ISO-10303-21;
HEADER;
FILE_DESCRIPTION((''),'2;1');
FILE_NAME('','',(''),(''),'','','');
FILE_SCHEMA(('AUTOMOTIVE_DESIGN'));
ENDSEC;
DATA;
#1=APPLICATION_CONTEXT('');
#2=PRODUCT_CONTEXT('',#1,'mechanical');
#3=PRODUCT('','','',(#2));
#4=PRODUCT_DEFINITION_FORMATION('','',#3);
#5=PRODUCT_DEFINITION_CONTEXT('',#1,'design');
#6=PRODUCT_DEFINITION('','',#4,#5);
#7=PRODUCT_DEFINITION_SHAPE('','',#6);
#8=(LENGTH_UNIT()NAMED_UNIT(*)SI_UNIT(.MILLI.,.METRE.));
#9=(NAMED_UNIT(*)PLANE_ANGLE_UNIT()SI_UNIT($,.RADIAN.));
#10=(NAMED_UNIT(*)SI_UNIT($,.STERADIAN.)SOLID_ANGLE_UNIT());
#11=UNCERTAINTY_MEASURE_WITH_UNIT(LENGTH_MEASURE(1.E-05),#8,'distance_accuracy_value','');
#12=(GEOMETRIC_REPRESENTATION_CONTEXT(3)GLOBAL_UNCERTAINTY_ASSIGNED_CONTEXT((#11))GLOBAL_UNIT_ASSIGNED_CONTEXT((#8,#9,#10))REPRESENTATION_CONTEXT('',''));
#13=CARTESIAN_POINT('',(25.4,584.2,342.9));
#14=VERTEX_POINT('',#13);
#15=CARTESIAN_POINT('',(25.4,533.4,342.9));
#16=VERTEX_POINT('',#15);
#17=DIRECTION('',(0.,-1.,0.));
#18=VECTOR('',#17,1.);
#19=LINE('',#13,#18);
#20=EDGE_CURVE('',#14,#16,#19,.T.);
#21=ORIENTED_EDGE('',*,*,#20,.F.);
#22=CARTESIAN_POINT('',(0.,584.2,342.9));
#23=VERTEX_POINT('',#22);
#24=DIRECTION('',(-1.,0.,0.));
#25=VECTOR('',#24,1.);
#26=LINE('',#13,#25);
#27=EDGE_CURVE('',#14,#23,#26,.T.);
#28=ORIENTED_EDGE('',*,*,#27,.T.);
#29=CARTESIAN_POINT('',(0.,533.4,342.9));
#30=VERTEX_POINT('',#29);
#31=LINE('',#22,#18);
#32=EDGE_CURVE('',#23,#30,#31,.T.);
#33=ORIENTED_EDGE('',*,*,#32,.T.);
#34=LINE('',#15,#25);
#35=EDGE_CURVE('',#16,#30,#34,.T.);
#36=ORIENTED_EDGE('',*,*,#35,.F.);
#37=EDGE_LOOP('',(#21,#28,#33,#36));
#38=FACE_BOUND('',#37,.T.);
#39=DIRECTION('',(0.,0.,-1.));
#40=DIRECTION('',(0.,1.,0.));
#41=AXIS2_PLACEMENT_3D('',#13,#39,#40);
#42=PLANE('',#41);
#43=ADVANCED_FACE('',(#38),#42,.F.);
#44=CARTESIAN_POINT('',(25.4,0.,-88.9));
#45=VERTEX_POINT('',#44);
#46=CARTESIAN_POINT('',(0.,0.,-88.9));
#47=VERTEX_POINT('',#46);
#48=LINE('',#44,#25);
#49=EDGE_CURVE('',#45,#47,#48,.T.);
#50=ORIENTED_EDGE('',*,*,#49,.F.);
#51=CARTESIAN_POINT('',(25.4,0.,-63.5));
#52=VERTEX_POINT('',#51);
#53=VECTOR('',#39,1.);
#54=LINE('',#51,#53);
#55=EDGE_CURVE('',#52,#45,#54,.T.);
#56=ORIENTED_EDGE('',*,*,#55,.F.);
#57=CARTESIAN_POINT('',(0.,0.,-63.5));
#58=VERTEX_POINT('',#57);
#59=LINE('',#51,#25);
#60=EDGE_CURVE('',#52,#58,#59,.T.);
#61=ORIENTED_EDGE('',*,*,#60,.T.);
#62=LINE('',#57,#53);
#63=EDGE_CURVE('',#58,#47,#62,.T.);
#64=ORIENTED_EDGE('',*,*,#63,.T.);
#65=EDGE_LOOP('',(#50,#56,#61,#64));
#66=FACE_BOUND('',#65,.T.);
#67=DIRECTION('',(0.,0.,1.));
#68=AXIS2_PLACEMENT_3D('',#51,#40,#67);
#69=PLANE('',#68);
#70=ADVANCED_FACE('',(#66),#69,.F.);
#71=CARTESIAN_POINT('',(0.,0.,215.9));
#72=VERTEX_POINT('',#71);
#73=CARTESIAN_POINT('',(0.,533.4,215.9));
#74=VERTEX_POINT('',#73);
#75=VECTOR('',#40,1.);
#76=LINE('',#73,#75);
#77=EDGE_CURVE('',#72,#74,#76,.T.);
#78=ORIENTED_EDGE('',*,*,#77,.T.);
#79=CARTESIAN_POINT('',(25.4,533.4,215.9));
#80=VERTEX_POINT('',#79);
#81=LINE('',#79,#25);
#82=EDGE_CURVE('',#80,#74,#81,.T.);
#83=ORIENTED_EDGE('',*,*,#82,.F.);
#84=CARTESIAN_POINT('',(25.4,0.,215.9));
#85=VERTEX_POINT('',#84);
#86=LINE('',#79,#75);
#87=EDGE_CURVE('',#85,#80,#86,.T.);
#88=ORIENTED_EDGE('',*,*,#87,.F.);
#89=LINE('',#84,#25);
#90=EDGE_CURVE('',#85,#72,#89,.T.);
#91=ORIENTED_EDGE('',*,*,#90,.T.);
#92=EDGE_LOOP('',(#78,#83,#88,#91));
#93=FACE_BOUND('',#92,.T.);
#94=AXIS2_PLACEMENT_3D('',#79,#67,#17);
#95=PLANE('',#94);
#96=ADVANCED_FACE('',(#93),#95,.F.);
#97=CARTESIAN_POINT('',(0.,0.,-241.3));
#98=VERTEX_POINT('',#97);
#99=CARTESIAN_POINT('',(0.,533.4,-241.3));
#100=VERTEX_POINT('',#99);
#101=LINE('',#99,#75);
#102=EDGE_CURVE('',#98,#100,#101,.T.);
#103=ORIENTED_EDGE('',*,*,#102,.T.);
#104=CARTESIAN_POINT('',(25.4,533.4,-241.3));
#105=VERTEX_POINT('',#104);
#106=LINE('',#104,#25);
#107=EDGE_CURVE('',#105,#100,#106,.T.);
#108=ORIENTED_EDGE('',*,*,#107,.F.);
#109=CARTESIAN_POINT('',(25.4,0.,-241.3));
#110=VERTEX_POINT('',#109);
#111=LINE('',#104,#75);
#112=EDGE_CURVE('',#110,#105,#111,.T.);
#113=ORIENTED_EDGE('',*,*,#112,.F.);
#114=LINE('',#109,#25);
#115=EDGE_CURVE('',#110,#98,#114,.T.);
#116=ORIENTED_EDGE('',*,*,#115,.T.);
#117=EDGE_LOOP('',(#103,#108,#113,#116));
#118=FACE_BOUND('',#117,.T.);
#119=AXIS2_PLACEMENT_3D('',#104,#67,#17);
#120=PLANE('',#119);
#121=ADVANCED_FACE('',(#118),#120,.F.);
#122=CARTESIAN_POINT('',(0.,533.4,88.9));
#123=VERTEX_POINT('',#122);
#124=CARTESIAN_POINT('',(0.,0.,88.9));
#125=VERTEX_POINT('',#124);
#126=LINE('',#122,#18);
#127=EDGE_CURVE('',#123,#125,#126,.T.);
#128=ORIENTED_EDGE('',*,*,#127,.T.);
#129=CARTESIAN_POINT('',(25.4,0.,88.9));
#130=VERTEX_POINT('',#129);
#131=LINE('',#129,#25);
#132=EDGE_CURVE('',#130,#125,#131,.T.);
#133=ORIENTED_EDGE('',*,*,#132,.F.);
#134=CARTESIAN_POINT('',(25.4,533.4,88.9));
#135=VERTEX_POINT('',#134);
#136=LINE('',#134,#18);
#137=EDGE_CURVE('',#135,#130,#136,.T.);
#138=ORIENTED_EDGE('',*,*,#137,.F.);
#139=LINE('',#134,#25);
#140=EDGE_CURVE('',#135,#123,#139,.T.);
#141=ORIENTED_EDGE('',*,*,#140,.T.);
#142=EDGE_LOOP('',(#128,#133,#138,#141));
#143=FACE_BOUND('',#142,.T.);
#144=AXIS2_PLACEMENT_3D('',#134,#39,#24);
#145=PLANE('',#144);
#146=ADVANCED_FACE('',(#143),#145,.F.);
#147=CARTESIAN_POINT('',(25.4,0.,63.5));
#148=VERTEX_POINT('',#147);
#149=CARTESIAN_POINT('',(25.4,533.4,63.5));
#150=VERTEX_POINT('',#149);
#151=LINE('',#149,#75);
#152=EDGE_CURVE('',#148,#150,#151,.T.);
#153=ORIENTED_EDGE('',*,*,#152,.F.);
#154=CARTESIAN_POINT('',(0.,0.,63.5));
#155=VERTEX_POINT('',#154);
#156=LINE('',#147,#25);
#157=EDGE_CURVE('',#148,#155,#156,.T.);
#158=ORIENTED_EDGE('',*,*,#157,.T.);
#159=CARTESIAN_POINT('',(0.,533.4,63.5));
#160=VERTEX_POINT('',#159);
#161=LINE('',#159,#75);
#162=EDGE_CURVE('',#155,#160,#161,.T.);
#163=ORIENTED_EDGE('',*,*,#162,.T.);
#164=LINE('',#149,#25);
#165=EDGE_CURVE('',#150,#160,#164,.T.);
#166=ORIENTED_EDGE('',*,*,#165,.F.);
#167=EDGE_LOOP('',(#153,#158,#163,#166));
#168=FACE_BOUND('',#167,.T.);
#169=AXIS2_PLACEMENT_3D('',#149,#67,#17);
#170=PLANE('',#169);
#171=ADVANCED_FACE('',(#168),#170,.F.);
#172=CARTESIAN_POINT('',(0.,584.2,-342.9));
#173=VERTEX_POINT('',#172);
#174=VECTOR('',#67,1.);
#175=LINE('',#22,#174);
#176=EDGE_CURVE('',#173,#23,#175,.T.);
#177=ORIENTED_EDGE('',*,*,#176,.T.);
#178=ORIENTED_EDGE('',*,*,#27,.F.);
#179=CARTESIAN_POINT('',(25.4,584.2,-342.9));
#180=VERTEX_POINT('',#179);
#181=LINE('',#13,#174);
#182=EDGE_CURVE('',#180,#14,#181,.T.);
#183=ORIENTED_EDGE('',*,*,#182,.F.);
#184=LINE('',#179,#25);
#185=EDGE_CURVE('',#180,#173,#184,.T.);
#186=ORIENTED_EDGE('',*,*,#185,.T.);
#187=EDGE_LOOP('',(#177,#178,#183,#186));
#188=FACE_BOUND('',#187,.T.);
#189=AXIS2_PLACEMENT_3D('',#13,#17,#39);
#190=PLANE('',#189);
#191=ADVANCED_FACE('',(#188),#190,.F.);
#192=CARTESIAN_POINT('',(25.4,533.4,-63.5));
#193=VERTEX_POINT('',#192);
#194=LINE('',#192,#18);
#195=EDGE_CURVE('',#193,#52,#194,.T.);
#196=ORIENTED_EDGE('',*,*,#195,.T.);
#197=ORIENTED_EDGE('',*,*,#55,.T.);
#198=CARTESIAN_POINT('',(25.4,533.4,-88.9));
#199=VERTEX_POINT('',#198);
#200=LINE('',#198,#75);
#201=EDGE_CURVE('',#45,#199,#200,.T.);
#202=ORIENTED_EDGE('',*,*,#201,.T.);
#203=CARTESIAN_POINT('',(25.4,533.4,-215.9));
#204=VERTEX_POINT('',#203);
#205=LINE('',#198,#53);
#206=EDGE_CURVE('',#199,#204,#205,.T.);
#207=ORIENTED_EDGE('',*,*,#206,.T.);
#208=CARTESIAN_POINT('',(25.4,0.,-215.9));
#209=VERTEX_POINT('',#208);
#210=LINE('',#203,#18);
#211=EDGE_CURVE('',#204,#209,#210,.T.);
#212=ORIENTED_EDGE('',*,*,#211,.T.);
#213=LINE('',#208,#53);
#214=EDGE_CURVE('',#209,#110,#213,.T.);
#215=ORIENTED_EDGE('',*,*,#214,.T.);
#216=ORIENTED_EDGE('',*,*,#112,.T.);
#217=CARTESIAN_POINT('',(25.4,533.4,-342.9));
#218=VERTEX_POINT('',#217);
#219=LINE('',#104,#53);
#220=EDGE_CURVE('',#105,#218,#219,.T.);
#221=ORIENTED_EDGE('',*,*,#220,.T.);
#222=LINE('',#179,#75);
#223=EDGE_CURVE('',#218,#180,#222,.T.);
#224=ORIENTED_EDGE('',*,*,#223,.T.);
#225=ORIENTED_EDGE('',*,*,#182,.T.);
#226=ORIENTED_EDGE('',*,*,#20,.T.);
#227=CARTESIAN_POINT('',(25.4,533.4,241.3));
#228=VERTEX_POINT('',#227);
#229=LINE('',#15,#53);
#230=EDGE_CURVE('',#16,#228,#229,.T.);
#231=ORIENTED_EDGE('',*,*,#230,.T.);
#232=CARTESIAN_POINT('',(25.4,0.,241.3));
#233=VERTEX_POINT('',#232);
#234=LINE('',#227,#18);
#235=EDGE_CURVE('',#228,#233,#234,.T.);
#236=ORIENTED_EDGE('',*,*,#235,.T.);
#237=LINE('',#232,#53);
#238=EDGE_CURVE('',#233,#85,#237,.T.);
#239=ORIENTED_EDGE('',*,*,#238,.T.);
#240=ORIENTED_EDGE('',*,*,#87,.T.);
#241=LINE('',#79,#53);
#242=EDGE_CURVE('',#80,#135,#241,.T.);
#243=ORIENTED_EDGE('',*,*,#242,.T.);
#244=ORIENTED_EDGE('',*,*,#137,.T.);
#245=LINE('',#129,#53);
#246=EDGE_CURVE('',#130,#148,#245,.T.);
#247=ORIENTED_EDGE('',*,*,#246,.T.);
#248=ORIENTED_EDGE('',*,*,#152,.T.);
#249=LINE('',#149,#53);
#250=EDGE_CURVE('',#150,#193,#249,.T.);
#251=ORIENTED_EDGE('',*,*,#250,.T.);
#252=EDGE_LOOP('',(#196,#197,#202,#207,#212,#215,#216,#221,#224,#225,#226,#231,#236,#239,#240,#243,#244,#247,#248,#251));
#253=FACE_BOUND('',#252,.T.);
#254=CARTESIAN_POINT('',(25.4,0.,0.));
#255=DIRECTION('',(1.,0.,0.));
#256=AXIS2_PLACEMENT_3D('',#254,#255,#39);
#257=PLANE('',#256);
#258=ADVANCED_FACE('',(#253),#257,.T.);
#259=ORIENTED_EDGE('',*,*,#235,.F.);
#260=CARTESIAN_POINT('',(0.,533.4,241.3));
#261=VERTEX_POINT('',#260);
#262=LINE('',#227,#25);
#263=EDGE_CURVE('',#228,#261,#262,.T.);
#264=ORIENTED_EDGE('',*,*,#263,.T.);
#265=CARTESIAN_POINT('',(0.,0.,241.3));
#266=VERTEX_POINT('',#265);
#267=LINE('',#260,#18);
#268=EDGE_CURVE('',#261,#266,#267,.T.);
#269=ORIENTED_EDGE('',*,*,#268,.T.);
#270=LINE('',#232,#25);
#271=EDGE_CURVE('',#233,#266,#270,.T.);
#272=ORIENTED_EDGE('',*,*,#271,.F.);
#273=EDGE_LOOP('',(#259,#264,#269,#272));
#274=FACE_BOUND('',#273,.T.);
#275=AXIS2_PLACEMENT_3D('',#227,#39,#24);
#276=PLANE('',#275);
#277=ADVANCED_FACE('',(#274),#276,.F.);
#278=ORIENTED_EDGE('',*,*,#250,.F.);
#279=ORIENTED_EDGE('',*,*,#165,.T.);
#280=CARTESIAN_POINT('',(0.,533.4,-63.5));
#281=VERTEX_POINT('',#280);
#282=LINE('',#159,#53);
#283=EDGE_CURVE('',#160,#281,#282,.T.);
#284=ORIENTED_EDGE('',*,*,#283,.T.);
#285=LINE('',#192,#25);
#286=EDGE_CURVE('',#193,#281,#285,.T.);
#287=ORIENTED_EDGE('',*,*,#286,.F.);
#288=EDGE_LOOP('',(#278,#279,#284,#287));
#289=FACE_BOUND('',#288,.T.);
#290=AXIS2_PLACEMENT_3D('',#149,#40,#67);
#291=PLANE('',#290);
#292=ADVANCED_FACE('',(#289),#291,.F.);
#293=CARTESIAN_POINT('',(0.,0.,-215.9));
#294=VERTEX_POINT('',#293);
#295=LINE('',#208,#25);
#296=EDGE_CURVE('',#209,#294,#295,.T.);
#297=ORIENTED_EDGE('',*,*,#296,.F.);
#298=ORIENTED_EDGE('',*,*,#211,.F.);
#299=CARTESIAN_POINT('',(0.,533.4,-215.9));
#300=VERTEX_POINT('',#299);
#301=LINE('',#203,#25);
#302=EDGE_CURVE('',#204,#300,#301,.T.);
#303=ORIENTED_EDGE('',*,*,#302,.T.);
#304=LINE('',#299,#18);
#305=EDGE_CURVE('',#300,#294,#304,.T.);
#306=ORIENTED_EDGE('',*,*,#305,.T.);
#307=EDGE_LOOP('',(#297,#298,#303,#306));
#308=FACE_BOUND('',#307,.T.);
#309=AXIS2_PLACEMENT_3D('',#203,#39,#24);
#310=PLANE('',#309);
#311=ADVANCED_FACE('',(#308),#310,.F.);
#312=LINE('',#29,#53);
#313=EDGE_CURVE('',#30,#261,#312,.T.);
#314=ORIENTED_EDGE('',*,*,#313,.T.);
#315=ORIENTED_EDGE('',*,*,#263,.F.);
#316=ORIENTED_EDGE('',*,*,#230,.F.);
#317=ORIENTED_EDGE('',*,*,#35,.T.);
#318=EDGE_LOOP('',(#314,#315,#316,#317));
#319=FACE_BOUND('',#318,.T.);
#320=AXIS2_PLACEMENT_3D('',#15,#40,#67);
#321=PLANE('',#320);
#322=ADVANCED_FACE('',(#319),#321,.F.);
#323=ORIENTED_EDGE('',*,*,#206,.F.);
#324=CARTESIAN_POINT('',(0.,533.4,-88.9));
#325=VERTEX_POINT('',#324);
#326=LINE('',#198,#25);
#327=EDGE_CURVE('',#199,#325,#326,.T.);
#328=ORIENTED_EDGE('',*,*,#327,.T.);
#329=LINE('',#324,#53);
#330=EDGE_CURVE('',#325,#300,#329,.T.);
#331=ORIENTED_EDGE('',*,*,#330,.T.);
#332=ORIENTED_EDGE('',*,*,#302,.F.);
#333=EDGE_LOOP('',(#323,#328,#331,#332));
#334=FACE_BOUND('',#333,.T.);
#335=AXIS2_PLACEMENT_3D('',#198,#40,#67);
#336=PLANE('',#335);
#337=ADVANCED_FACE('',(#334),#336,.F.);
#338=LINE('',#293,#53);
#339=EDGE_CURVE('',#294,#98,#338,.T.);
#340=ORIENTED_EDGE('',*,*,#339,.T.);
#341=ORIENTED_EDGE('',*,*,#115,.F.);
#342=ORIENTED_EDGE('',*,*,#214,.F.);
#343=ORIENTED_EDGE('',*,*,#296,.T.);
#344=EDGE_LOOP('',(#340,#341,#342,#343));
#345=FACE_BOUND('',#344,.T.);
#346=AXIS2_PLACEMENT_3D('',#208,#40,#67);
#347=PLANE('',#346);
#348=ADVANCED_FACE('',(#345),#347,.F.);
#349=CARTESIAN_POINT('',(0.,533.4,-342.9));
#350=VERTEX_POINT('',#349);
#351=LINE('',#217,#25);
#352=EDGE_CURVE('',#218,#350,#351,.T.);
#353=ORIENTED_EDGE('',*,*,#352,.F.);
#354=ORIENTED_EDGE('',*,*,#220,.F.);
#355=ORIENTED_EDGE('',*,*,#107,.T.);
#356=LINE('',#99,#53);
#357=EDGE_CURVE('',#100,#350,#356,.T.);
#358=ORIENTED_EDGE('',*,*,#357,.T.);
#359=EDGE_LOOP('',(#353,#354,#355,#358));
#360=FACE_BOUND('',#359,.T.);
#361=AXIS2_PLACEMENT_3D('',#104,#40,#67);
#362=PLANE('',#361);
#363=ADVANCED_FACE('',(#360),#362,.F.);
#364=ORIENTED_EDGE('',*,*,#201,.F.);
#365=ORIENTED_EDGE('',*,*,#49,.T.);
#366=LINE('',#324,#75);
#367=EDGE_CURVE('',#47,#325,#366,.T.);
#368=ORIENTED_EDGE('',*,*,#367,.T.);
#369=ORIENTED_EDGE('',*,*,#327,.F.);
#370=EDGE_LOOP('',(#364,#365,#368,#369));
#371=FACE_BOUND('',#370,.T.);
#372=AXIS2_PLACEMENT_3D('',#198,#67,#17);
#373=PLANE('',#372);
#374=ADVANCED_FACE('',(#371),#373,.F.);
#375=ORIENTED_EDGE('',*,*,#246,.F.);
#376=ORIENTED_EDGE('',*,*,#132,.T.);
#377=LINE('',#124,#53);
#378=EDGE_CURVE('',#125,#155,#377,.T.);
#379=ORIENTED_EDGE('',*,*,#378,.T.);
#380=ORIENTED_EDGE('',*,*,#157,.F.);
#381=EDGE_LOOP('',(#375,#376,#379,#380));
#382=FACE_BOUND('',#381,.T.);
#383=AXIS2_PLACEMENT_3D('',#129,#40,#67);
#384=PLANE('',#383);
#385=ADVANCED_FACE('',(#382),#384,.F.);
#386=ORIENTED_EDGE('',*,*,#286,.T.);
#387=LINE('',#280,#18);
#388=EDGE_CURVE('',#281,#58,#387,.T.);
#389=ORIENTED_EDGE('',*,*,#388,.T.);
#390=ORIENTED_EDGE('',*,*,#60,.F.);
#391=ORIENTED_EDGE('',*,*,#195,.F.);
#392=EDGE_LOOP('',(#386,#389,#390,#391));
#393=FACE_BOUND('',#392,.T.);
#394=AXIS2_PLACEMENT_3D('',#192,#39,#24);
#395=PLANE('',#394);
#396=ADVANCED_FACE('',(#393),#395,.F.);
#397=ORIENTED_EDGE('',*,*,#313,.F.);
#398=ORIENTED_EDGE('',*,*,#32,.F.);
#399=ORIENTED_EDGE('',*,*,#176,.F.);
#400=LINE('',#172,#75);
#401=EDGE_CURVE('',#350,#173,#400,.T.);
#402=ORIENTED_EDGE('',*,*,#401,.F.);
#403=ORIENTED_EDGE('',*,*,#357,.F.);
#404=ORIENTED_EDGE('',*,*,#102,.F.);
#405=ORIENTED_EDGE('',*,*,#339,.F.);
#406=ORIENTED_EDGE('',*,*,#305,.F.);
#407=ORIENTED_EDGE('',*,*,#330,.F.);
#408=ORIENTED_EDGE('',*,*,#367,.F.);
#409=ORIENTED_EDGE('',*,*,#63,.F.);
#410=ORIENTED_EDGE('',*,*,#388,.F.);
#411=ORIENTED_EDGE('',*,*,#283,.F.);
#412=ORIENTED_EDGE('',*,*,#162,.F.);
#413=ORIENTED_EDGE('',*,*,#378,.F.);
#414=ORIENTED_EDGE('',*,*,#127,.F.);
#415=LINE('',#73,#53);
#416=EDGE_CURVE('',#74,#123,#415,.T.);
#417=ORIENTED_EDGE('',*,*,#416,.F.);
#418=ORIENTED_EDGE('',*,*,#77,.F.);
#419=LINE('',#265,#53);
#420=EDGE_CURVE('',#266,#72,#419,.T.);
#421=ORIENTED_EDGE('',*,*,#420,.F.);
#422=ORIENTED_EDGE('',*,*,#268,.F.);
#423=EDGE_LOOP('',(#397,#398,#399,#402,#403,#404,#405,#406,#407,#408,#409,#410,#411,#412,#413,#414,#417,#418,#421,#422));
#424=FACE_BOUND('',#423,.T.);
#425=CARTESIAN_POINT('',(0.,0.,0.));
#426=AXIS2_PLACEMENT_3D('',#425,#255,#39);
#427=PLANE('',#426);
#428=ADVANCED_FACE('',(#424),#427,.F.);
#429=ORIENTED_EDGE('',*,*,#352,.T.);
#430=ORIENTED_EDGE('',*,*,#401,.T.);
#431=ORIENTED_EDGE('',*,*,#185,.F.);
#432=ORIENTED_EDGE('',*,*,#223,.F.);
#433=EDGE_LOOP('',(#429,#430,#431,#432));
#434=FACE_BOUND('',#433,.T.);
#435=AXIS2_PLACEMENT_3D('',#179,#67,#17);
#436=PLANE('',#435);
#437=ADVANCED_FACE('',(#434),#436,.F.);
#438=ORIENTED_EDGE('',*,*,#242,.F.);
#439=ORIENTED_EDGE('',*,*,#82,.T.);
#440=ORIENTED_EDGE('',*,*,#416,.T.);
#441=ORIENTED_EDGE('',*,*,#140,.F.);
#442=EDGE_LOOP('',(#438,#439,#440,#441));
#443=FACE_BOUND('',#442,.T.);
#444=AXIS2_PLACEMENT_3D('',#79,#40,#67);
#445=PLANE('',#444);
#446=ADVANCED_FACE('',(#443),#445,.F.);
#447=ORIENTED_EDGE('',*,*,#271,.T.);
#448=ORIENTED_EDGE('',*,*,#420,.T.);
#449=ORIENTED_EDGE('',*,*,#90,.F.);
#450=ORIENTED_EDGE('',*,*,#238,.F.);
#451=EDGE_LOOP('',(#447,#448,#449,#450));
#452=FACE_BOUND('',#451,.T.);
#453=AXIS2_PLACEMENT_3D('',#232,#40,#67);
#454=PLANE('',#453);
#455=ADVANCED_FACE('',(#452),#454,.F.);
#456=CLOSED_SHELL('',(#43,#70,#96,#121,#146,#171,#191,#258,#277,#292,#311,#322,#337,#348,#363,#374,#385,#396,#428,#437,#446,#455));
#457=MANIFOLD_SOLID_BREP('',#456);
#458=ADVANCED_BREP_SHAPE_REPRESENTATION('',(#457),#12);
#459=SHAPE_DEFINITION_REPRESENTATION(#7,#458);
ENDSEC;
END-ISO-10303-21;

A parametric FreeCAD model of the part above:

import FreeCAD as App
import Part
import Sketcher
from FreeCAD import Vector
Q = App.Units.Quantity


def add_polygon(sketch, points):
    """Adds a closed chain of lines whose ends are joined by coincident constraints."""
    first, n = sketch.GeometryCount, len(points)
    for a, b in zip(points, points[1:] + points[:1]):
        sketch.addGeometry(Part.LineSegment(App.Vector(*a, 0), App.Vector(*b, 0)), False)
    for i in range(n):
        sketch.addConstraint(Sketcher.Constraint("Coincident", first + i, 2, first + (i + 1) % n, 1))

doc = App.newDocument("Part")
body = doc.addObject("PartDesign::Body", "Body")

# Sketch on YZ plane
sketch1 = body.newObject("Sketcher::SketchObject", "Sketch")
sketch1.AttachmentSupport = (doc.getObject("YZ_Plane"), [""])
sketch1.MapMode = "FlatFace"
add_polygon(sketch1, [(584, -343), (584, 343), (533, 343), (533, 241), (0, 241), (0, 216), (533, 216), (533, 89), (0, 89), (0, 64), (533, 64), (533, -64), (0, -64), (0, -89), (533, -89), (533, -216), (0, -216), (0, -241), (533, -241), (533, -343)])  # lines 0-19
sketch1.addConstraint([
    Sketcher.Constraint("Vertical", 0),
    Sketcher.Constraint("Horizontal", 1),
    Sketcher.Constraint("Vertical", 2),
    Sketcher.Constraint("Horizontal", 3),
    Sketcher.Constraint("Vertical", 4),
    Sketcher.Constraint("Horizontal", 5),
    Sketcher.Constraint("Vertical", 6),
    Sketcher.Constraint("Horizontal", 7),
    Sketcher.Constraint("Vertical", 8),
    Sketcher.Constraint("Horizontal", 9),
    Sketcher.Constraint("Vertical", 10),
    Sketcher.Constraint("Horizontal", 11),
    Sketcher.Constraint("Vertical", 12),
    Sketcher.Constraint("Horizontal", 13),
    Sketcher.Constraint("Vertical", 14),
    Sketcher.Constraint("Horizontal", 15),
    Sketcher.Constraint("Vertical", 16),
    Sketcher.Constraint("Horizontal", 17),
    Sketcher.Constraint("Vertical", 18),
    Sketcher.Constraint("Horizontal", 19),
    Sketcher.Constraint("Symmetric", 8, 2, 11, 2, -1, 1),
    Sketcher.Constraint("Symmetric", 4, 2, 15, 2, -1, 1),
    Sketcher.Constraint("Symmetric", 7, 2, 12, 2, -1),
    Sketcher.Constraint("Symmetric", 3, 2, 16, 2, -1),
    Sketcher.Constraint("Symmetric", 1, 2, 18, 2, -1),
    Sketcher.Constraint("Vertical", 2, 2, 5, 2),
    Sketcher.Constraint("Vertical", 6, 2, 9, 2),
    Sketcher.Constraint("Vertical", 10, 2, 13, 2),
    Sketcher.Constraint("Equal", 4, 8),
    Sketcher.Constraint("Equal", 6, 10),
    Sketcher.Constraint("DistanceX", 1, 2, 1, 1, Q("2 in")),
    Sketcher.Constraint("DistanceX", 3, 2, 3, 1, Q("21 in")),
    Sketcher.Constraint("DistanceY", 0, 1, 0, 2, Q("27 in")),
    Sketcher.Constraint("DistanceY", 2, 2, 2, 1, Q("4 in")),
    Sketcher.Constraint("DistanceY", 4, 2, 4, 1, Q("1 in")),
])
pad1 = body.newObject("PartDesign::Pad", "Pad")
pad1.Profile = sketch1
pad1.Length = Q("1 in")

doc.recompute()
